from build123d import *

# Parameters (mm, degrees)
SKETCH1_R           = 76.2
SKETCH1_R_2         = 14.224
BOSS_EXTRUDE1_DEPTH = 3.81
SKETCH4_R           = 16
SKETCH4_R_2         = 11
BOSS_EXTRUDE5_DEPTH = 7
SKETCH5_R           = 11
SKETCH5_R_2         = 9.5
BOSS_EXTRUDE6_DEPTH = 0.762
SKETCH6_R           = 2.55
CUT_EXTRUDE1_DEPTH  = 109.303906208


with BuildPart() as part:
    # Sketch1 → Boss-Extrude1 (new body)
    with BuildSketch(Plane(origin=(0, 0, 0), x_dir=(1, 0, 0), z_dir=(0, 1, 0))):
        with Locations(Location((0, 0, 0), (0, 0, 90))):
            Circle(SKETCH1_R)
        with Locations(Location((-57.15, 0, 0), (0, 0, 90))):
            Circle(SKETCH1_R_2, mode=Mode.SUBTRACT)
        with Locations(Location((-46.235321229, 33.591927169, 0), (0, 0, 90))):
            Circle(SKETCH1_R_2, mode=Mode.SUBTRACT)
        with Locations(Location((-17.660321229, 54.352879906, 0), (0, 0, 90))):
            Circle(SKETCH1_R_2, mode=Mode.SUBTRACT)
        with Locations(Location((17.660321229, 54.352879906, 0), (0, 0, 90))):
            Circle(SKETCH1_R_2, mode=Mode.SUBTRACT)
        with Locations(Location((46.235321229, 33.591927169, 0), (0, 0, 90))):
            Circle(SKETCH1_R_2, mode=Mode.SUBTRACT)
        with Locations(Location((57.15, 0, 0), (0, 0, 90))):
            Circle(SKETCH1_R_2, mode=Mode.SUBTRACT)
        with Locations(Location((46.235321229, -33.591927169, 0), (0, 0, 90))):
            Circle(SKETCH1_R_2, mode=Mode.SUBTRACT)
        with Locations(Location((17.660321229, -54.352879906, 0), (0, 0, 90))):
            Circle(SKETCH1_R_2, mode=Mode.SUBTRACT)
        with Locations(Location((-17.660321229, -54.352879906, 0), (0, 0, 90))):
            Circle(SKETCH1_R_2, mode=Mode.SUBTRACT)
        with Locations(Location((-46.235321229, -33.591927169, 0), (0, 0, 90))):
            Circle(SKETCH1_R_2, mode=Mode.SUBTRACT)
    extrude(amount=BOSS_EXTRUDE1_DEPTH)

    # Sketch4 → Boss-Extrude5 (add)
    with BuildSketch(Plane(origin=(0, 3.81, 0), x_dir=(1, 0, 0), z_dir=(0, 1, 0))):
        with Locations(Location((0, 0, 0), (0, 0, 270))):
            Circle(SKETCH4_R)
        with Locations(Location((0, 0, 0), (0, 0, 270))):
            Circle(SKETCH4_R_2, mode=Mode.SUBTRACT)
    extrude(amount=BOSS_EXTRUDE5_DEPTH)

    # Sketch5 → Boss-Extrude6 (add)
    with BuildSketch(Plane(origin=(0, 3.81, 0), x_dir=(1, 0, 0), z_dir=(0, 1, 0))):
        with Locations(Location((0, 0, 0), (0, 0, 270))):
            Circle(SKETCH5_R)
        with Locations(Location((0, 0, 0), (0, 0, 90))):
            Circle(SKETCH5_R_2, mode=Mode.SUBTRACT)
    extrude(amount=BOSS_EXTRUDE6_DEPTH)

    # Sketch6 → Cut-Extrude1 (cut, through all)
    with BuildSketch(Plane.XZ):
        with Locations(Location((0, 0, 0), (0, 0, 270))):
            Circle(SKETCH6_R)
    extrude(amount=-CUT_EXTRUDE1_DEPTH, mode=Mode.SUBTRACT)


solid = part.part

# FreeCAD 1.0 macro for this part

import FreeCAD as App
import Part
import Sketcher

V = App.Vector

doc = App.newDocument("Part")
params = doc.addObject("Spreadsheet::Sheet", "Params")
for row, (alias, value) in enumerate([
    ("sketch1_diameter", "152.4 mm"),
    ("pad1_length", "3.81 mm"),
    ("sketch2_diameter", "32 mm"),
    ("sketch2_diameter2", "22 mm"),
    ("pad2_length", "7 mm"),
    ("sketch3_diameter", "22 mm"),
    ("sketch3_diameter2", "19 mm"),
    ("pad3_length", "0.762 mm"),
    ("sketch4_diameter", "5.1 mm"),
], start=1):
    params.set(f"A{row}", alias)
    params.set(f"B{row}", "=" + value)
    params.setAlias(f"B{row}", alias)

body = doc.addObject("PartDesign::Body", "Body")

# Sketch on XZ plane
sketch1 = body.newObject("Sketcher::SketchObject", "Sketch")
sketch1.AttachmentSupport = (doc.getObject("XZ_Plane"), [""])
sketch1.MapMode = "FlatFace"
sketch1.addGeometry(Part.Circle(V(0, 0, 0), V(0, 0, 1), 76), False)
sketch1.addGeometry(Part.Circle(V(46, 34, 0), V(0, 0, 1), 14), False)
sketch1.addGeometry(Part.Circle(V(18, 54, 0), V(0, 0, 1), 14), False)
sketch1.addGeometry(Part.Circle(V(57, 0, 0), V(0, 0, 1), 14), False)
sketch1.addGeometry(Part.Circle(V(46, -34, 0), V(0, 0, 1), 14), False)
sketch1.addGeometry(Part.Circle(V(18, -54, 0), V(0, 0, 1), 14), False)
sketch1.addGeometry(Part.Circle(V(-18, 54, 0), V(0, 0, 1), 14), False)
sketch1.addGeometry(Part.Circle(V(-46, 34, 0), V(0, 0, 1), 14), False)
sketch1.addGeometry(Part.Circle(V(-57, 0, 0), V(0, 0, 1), 14), False)
sketch1.addGeometry(Part.Circle(V(-18, -54, 0), V(0, 0, 1), 14), False)
sketch1.addGeometry(Part.Circle(V(-46, -34, 0), V(0, 0, 1), 14), False)
sketch1.addConstraint(Sketcher.Constraint("Coincident", 0, 3, -1, 1))
sketch1.addConstraint(Sketcher.Constraint("Equal", 1, 2))
sketch1.addConstraint(Sketcher.Constraint("Equal", 2, 3))
sketch1.addConstraint(Sketcher.Constraint("Equal", 3, 4))
sketch1.addConstraint(Sketcher.Constraint("Equal", 4, 5))
sketch1.addConstraint(Sketcher.Constraint("Equal", 5, 6))
sketch1.addConstraint(Sketcher.Constraint("Equal", 6, 7))
sketch1.addConstraint(Sketcher.Constraint("Equal", 7, 8))
sketch1.addConstraint(Sketcher.Constraint("Equal", 8, 9))
sketch1.addConstraint(Sketcher.Constraint("Equal", 9, 10))
sketch1.addConstraint(Sketcher.Constraint("Symmetric", 5, 3, 6, 3, -1, 1))
sketch1.addConstraint(Sketcher.Constraint("Symmetric", 4, 3, 7, 3, -1, 1))
sketch1.addConstraint(Sketcher.Constraint("Symmetric", 3, 3, 8, 3, -1, 1))
sketch1.addConstraint(Sketcher.Constraint("Symmetric", 2, 3, 9, 3, -1, 1))
sketch1.addConstraint(Sketcher.Constraint("Symmetric", 1, 3, 10, 3, -1, 1))
sketch1.addConstraint(Sketcher.Constraint("Symmetric", 2, 3, 6, 3, -2))
sketch1.addConstraint(Sketcher.Constraint("Symmetric", 1, 3, 7, 3, -2))
sketch1.addConstraint(Sketcher.Constraint("PointOnObject", 3, 3, -1))
sketch1.addConstraint(Sketcher.Constraint("Diameter", 0, 152.4))
sketch1.addConstraint(Sketcher.Constraint("Diameter", 1, 28.448))
sketch1.addConstraint(Sketcher.Constraint("DistanceX", -1, 1, 3, 3, 57.15))
sketch1.addConstraint(Sketcher.Constraint("DistanceX", 2, 3, 1, 3, 28.575))
sketch1.addConstraint(Sketcher.Constraint("DistanceX", -1, 1, 1, 3, 46.235321))
sketch1.addConstraint(Sketcher.Constraint("DistanceY", -1, 1, 2, 3, 54.35288))
sketch1.addConstraint(Sketcher.Constraint("DistanceY", -1, 1, 1, 3, 33.591927))
sketch1.setExpression("Constraints[18]", "Params.sketch1_diameter")
pad1 = body.newObject("PartDesign::Pad", "Pad")
pad1.Profile = sketch1
pad1.setExpression("Length", "Params.pad1_length")
pad1.Reversed = True

# Sketch on XZ plane
sketch2 = body.newObject("Sketcher::SketchObject", "Sketch001")
sketch2.AttachmentSupport = (doc.getObject("XZ_Plane"), [""])
sketch2.MapMode = "FlatFace"
sketch2.AttachmentOffset = App.Placement(V(0, 0, -3.81), App.Rotation())
sketch2.addGeometry(Part.Circle(V(0, 0, 0), V(0, 0, 1), 16), False)
sketch2.addGeometry(Part.Circle(V(0, 0, 0), V(0, 0, 1), 11), False)
sketch2.addConstraint(Sketcher.Constraint("Coincident", 0, 3, -1, 1))
sketch2.addConstraint(Sketcher.Constraint("Coincident", 1, 3, -1, 1))
sketch2.addConstraint(Sketcher.Constraint("Diameter", 0, 32.0))
sketch2.addConstraint(Sketcher.Constraint("Diameter", 1, 22.0))
sketch2.setExpression("Constraints[2]", "Params.sketch2_diameter")
sketch2.setExpression("Constraints[3]", "Params.sketch2_diameter2")
pad2 = body.newObject("PartDesign::Pad", "Pad001")
pad2.Profile = sketch2
pad2.setExpression("Length", "Params.pad2_length")
pad2.Reversed = True

# Sketch on XZ plane
sketch3 = body.newObject("Sketcher::SketchObject", "Sketch002")
sketch3.AttachmentSupport = (doc.getObject("XZ_Plane"), [""])
sketch3.MapMode = "FlatFace"
sketch3.AttachmentOffset = App.Placement(V(0, 0, -3.81), App.Rotation())
sketch3.addGeometry(Part.Circle(V(0, 0, 0), V(0, 0, 1), 11), False)
sketch3.addGeometry(Part.Circle(V(0, 0, 0), V(0, 0, 1), 10), False)
sketch3.addConstraint(Sketcher.Constraint("Coincident", 0, 3, -1, 1))
sketch3.addConstraint(Sketcher.Constraint("Coincident", 1, 3, -1, 1))
sketch3.addConstraint(Sketcher.Constraint("Diameter", 0, 22.0))
sketch3.addConstraint(Sketcher.Constraint("Diameter", 1, 19.0))
sketch3.setExpression("Constraints[2]", "Params.sketch3_diameter")
sketch3.setExpression("Constraints[3]", "Params.sketch3_diameter2")
pad3 = body.newObject("PartDesign::Pad", "Pad002")
pad3.Profile = sketch3
pad3.setExpression("Length", "Params.pad3_length")
pad3.Reversed = True

# Sketch on XZ plane
sketch4 = body.newObject("Sketcher::SketchObject", "Sketch003")
sketch4.AttachmentSupport = (doc.getObject("XZ_Plane"), [""])
sketch4.MapMode = "FlatFace"
sketch4.addGeometry(Part.Circle(V(0, 0, 0), V(0, 0, 1), 2.5), False)
sketch4.addConstraint(Sketcher.Constraint("Coincident", 0, 3, -1, 1))
sketch4.addConstraint(Sketcher.Constraint("Diameter", 0, 5.1))
sketch4.setExpression("Constraints[1]", "Params.sketch4_diameter")
pocket1 = body.newObject("PartDesign::Pocket", "Pocket")
pocket1.Profile = sketch4
pocket1.Type = "ThroughAll"

doc.recompute()
